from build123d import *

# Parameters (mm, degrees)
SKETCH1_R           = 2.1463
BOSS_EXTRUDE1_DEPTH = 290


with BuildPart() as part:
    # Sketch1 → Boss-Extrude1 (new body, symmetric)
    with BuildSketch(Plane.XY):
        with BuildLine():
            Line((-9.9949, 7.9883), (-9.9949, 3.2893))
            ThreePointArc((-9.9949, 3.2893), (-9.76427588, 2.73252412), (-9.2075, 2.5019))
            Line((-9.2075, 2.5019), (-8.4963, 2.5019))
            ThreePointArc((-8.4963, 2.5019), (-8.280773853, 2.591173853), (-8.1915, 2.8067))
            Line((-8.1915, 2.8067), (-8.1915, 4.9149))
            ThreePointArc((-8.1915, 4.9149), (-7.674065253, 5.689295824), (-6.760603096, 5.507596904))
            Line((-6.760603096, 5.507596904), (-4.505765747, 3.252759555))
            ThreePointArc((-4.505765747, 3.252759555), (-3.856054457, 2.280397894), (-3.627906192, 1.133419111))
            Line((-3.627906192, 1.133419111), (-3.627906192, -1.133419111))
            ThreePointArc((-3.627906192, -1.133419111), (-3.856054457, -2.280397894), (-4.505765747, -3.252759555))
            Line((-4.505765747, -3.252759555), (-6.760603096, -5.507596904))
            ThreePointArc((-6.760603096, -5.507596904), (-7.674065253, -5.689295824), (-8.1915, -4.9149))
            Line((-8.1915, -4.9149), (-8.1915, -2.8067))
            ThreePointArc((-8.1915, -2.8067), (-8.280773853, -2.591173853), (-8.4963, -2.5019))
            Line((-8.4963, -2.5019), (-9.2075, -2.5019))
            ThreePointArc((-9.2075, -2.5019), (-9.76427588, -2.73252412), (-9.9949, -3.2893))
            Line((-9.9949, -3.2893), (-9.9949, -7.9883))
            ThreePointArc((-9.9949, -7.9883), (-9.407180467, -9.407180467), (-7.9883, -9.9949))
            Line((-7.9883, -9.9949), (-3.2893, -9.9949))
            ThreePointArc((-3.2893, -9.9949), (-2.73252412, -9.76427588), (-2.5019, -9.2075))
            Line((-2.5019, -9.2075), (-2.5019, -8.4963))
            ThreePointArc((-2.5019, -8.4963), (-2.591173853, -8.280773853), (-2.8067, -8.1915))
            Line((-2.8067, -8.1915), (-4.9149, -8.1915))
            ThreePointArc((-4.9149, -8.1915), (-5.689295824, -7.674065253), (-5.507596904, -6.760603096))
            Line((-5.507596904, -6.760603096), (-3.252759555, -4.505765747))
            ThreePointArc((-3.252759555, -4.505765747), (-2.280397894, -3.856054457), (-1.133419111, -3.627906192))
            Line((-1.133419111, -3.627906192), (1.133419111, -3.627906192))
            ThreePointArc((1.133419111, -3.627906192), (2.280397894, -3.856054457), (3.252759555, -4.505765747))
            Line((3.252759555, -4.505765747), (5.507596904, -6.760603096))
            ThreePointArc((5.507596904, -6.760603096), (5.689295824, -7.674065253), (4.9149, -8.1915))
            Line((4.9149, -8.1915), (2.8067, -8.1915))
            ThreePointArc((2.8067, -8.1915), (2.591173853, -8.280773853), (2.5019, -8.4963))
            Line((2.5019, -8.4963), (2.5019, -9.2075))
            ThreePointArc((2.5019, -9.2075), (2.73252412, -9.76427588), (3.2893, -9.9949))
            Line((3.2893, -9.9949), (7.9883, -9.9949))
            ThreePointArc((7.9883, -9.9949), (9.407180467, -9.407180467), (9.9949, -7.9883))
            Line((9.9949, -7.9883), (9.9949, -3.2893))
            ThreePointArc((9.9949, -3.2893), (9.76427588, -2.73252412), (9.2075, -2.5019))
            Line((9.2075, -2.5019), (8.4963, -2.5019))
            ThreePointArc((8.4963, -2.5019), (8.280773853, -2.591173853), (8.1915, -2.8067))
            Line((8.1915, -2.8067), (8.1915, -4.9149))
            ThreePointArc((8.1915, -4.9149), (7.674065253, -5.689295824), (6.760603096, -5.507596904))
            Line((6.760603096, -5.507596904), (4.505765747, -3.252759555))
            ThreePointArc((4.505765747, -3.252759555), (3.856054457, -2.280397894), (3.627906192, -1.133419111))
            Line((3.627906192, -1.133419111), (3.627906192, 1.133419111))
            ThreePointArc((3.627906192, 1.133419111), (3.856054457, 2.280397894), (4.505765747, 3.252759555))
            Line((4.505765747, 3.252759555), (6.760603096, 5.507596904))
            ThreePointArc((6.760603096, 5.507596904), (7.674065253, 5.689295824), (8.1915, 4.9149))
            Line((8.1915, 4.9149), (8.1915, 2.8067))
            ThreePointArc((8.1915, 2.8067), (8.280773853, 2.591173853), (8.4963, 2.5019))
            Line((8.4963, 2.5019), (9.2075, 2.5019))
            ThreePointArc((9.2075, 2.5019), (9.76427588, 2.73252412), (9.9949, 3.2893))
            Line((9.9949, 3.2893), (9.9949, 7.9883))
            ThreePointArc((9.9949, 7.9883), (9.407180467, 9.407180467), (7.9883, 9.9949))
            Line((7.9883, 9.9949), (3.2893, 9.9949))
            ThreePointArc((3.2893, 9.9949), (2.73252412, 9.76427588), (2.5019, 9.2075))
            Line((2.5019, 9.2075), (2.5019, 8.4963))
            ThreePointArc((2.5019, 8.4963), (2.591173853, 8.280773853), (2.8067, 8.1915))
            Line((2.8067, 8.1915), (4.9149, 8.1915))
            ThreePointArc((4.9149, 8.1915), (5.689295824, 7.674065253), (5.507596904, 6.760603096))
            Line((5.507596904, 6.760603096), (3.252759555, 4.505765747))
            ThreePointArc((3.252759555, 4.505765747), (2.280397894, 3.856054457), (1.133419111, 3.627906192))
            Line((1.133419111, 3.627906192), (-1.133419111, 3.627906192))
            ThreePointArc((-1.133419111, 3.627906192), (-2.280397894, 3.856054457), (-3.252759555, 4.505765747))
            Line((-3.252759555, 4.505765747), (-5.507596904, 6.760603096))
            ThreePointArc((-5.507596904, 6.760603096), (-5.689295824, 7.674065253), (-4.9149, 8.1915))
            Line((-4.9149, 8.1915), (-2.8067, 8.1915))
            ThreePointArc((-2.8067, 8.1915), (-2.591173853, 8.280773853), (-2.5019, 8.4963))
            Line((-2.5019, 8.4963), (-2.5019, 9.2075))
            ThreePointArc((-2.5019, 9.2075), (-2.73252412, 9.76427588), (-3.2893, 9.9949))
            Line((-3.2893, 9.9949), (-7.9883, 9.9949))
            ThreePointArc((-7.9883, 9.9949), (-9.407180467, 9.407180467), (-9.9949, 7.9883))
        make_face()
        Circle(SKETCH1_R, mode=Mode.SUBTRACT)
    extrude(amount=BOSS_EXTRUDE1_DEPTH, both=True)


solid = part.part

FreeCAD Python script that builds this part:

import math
import FreeCAD as App
import Part
import Sketcher

V = App.Vector
Q = App.Units.Quantity

doc = App.newDocument("Part")
params = doc.addObject("Spreadsheet::Sheet", "Params")
for row, (alias, value) in enumerate([
    ("sketch1_diameter", "0.169 in"),
    ("sketch1_radius", "0.031 in"),
    ("sketch1_radius2", "0.012 in"),
    ("sketch1_radius3", "0.033 in"),
    ("sketch1_radius4", "0.118 in"),
    ("pad1_length", "580 mm"),
], start=1):
    params.set(f"A{row}", alias)
    params.set(f"B{row}", "=" + value)
    params.setAlias(f"B{row}", alias)

body = doc.addObject("PartDesign::Body", "Body")

sketch1 = body.newObject("Sketcher::SketchObject", "Sketch")
sketch1.AttachmentSupport = (doc.getObject("XY_Plane"), [""])
sketch1.MapMode = "FlatFace"
sketch1.addGeometry(Part.LineSegment(V(-9.99, 7.99, 0), V(-9.99, 3.29, 0)), False)
sketch1.addGeometry(Part.ArcOfCircle(Part.Circle(V(-9.21, 3.29, 0), V(0, 0, 1), 0.79), math.radians(180), math.radians(270)), False)
sketch1.addGeometry(Part.LineSegment(V(-9.21, 2.5, 0), V(-8.5, 2.5, 0)), False)
sketch1.addGeometry(Part.ArcOfCircle(Part.Circle(V(-8.5, 2.81, 0), V(0, 0, 1), 0.3), math.radians(-90), math.radians(0)), False)
sketch1.addGeometry(Part.LineSegment(V(-8.19, 2.81, 0), V(-8.19, 4.91, 0)), False)
sketch1.addGeometry(Part.ArcOfCircle(Part.Circle(V(-7.35, 4.91, 0), V(0, 0, 1), 0.84), math.radians(45), math.radians(180)), False)
sketch1.addGeometry(Part.LineSegment(V(-6.76, 5.51, 0), V(-4.51, 3.25, 0)), False)
sketch1.addGeometry(Part.ArcOfCircle(Part.Circle(V(-6.63, 1.13, 0), V(0, 0, 1), 3), math.radians(0), math.radians(45)), False)
sketch1.addGeometry(Part.LineSegment(V(-3.63, 1.13, 0), V(-3.63, -1.13, 0)), False)
sketch1.addGeometry(Part.ArcOfCircle(Part.Circle(V(-6.63, -1.13, 0), V(0, 0, 1), 3), math.radians(-45), math.radians(0)), False)
sketch1.addGeometry(Part.LineSegment(V(-4.51, -3.25, 0), V(-6.76, -5.51, 0)), False)
sketch1.addGeometry(Part.ArcOfCircle(Part.Circle(V(-7.35, -4.91, 0), V(0, 0, 1), 0.84), math.radians(180), math.radians(315)), False)
sketch1.addGeometry(Part.LineSegment(V(-8.19, -4.91, 0), V(-8.19, -2.81, 0)), False)
sketch1.addGeometry(Part.ArcOfCircle(Part.Circle(V(-8.5, -2.81, 0), V(0, 0, 1), 0.3), math.radians(0), math.radians(90)), False)
sketch1.addGeometry(Part.LineSegment(V(-8.5, -2.5, 0), V(-9.21, -2.5, 0)), False)
sketch1.addGeometry(Part.ArcOfCircle(Part.Circle(V(-9.21, -3.29, 0), V(0, 0, 1), 0.79), math.radians(90), math.radians(180)), False)
sketch1.addGeometry(Part.LineSegment(V(-9.99, -3.29, 0), V(-9.99, -7.99, 0)), False)
sketch1.addGeometry(Part.ArcOfCircle(Part.Circle(V(-7.99, -7.99, 0), V(0, 0, 1), 2.01), math.radians(180), math.radians(270)), False)
sketch1.addGeometry(Part.LineSegment(V(-7.99, -9.99, 0), V(-3.29, -9.99, 0)), False)
sketch1.addGeometry(Part.ArcOfCircle(Part.Circle(V(-3.29, -9.21, 0), V(0, 0, 1), 0.79), math.radians(-90), math.radians(0)), False)
sketch1.addGeometry(Part.LineSegment(V(-2.5, -9.21, 0), V(-2.5, -8.5, 0)), False)
sketch1.addGeometry(Part.ArcOfCircle(Part.Circle(V(-2.81, -8.5, 0), V(0, 0, 1), 0.3), math.radians(0), math.radians(90)), False)
sketch1.addGeometry(Part.LineSegment(V(-2.81, -8.19, 0), V(-4.91, -8.19, 0)), False)
sketch1.addGeometry(Part.ArcOfCircle(Part.Circle(V(-4.91, -7.35, 0), V(0, 0, 1), 0.84), math.radians(135), math.radians(270)), False)
sketch1.addGeometry(Part.LineSegment(V(-5.51, -6.76, 0), V(-3.25, -4.51, 0)), False)
sketch1.addGeometry(Part.ArcOfCircle(Part.Circle(V(-1.13, -6.63, 0), V(0, 0, 1), 3), math.radians(90), math.radians(135)), False)
sketch1.addGeometry(Part.LineSegment(V(-1.13, -3.63, 0), V(1.13, -3.63, 0)), False)
sketch1.addGeometry(Part.ArcOfCircle(Part.Circle(V(1.13, -6.63, 0), V(0, 0, 1), 3), math.radians(45), math.radians(90)), False)
sketch1.addGeometry(Part.LineSegment(V(3.25, -4.51, 0), V(5.51, -6.76, 0)), False)
sketch1.addGeometry(Part.ArcOfCircle(Part.Circle(V(4.91, -7.35, 0), V(0, 0, 1), 0.84), math.radians(-90), math.radians(45)), False)
sketch1.addGeometry(Part.LineSegment(V(4.91, -8.19, 0), V(2.81, -8.19, 0)), False)
sketch1.addGeometry(Part.ArcOfCircle(Part.Circle(V(2.81, -8.5, 0), V(0, 0, 1), 0.3), math.radians(90), math.radians(180)), False)
sketch1.addGeometry(Part.LineSegment(V(2.5, -8.5, 0), V(2.5, -9.21, 0)), False)
sketch1.addGeometry(Part.ArcOfCircle(Part.Circle(V(3.29, -9.21, 0), V(0, 0, 1), 0.79), math.radians(180), math.radians(270)), False)
sketch1.addGeometry(Part.LineSegment(V(3.29, -9.99, 0), V(7.99, -9.99, 0)), False)
sketch1.addGeometry(Part.ArcOfCircle(Part.Circle(V(7.99, -7.99, 0), V(0, 0, 1), 2.01), math.radians(-90), math.radians(0)), False)
sketch1.addGeometry(Part.LineSegment(V(9.99, -7.99, 0), V(9.99, -3.29, 0)), False)
sketch1.addGeometry(Part.ArcOfCircle(Part.Circle(V(9.21, -3.29, 0), V(0, 0, 1), 0.79), math.radians(0), math.radians(90)), False)
sketch1.addGeometry(Part.LineSegment(V(9.21, -2.5, 0), V(8.5, -2.5, 0)), False)
sketch1.addGeometry(Part.ArcOfCircle(Part.Circle(V(8.5, -2.81, 0), V(0, 0, 1), 0.3), math.radians(90), math.radians(180)), False)
sketch1.addGeometry(Part.LineSegment(V(8.19, -2.81, 0), V(8.19, -4.91, 0)), False)
sketch1.addGeometry(Part.ArcOfCircle(Part.Circle(V(7.35, -4.91, 0), V(0, 0, 1), 0.84), math.radians(-135), math.radians(0)), False)
sketch1.addGeometry(Part.LineSegment(V(6.76, -5.51, 0), V(4.51, -3.25, 0)), False)
sketch1.addGeometry(Part.ArcOfCircle(Part.Circle(V(6.63, -1.13, 0), V(0, 0, 1), 3), math.radians(180), math.radians(225)), False)
sketch1.addGeometry(Part.LineSegment(V(3.63, -1.13, 0), V(3.63, 1.13, 0)), False)
sketch1.addGeometry(Part.ArcOfCircle(Part.Circle(V(6.63, 1.13, 0), V(0, 0, 1), 3), math.radians(135), math.radians(180)), False)
sketch1.addGeometry(Part.LineSegment(V(4.51, 3.25, 0), V(6.76, 5.51, 0)), False)
sketch1.addGeometry(Part.ArcOfCircle(Part.Circle(V(7.35, 4.91, 0), V(0, 0, 1), 0.84), math.radians(0), math.radians(135)), False)
sketch1.addGeometry(Part.LineSegment(V(8.19, 4.91, 0), V(8.19, 2.81, 0)), False)
sketch1.addGeometry(Part.ArcOfCircle(Part.Circle(V(8.5, 2.81, 0), V(0, 0, 1), 0.3), math.radians(180), math.radians(270)), False)
sketch1.addGeometry(Part.LineSegment(V(8.5, 2.5, 0), V(9.21, 2.5, 0)), False)
sketch1.addGeometry(Part.ArcOfCircle(Part.Circle(V(9.21, 3.29, 0), V(0, 0, 1), 0.79), math.radians(-90), math.radians(0)), False)
sketch1.addGeometry(Part.LineSegment(V(9.99, 3.29, 0), V(9.99, 7.99, 0)), False)
sketch1.addGeometry(Part.ArcOfCircle(Part.Circle(V(7.99, 7.99, 0), V(0, 0, 1), 2.01), math.radians(0), math.radians(90)), False)
sketch1.addGeometry(Part.LineSegment(V(7.99, 9.99, 0), V(3.29, 9.99, 0)), False)
sketch1.addGeometry(Part.ArcOfCircle(Part.Circle(V(3.29, 9.21, 0), V(0, 0, 1), 0.79), math.radians(90), math.radians(180)), False)
sketch1.addGeometry(Part.LineSegment(V(2.5, 9.21, 0), V(2.5, 8.5, 0)), False)
sketch1.addGeometry(Part.ArcOfCircle(Part.Circle(V(2.81, 8.5, 0), V(0, 0, 1), 0.3), math.radians(180), math.radians(270)), False)
sketch1.addGeometry(Part.LineSegment(V(2.81, 8.19, 0), V(4.91, 8.19, 0)), False)
sketch1.addGeometry(Part.ArcOfCircle(Part.Circle(V(4.91, 7.35, 0), V(0, 0, 1), 0.84), math.radians(-45), math.radians(90)), False)
sketch1.addGeometry(Part.LineSegment(V(5.51, 6.76, 0), V(3.25, 4.51, 0)), False)
sketch1.addGeometry(Part.ArcOfCircle(Part.Circle(V(1.13, 6.63, 0), V(0, 0, 1), 3), math.radians(-90), math.radians(-45)), False)
sketch1.addGeometry(Part.LineSegment(V(1.13, 3.63, 0), V(-1.13, 3.63, 0)), False)
sketch1.addGeometry(Part.ArcOfCircle(Part.Circle(V(-1.13, 6.63, 0), V(0, 0, 1), 3), math.radians(-135), math.radians(-90)), False)
sketch1.addGeometry(Part.LineSegment(V(-3.25, 4.51, 0), V(-5.51, 6.76, 0)), False)
sketch1.addGeometry(Part.ArcOfCircle(Part.Circle(V(-4.91, 7.35, 0), V(0, 0, 1), 0.84), math.radians(90), math.radians(225)), False)
sketch1.addGeometry(Part.LineSegment(V(-4.91, 8.19, 0), V(-2.81, 8.19, 0)), False)
sketch1.addGeometry(Part.ArcOfCircle(Part.Circle(V(-2.81, 8.5, 0), V(0, 0, 1), 0.3), math.radians(-90), math.radians(0)), False)
sketch1.addGeometry(Part.LineSegment(V(-2.5, 8.5, 0), V(-2.5, 9.21, 0)), False)
sketch1.addGeometry(Part.ArcOfCircle(Part.Circle(V(-3.29, 9.21, 0), V(0, 0, 1), 0.79), math.radians(0), math.radians(90)), False)
sketch1.addGeometry(Part.LineSegment(V(-3.29, 9.99, 0), V(-7.99, 9.99, 0)), False)
sketch1.addGeometry(Part.ArcOfCircle(Part.Circle(V(-7.99, 7.99, 0), V(0, 0, 1), 2.01), math.radians(90), math.radians(180)), False)
sketch1.addGeometry(Part.Circle(V(0, 0, 0), V(0, 0, 1), 2.15), False)
sketch1.addConstraint(Sketcher.Constraint("Tangent", 0, 2, 1, 1))
sketch1.addConstraint(Sketcher.Constraint("Tangent", 1, 2, 2, 1))
sketch1.addConstraint(Sketcher.Constraint("Tangent", 2, 2, 3, 1))
sketch1.addConstraint(Sketcher.Constraint("Tangent", 3, 2, 4, 1))
sketch1.addConstraint(Sketcher.Constraint("Tangent", 4, 2, 5, 2))
sketch1.addConstraint(Sketcher.Constraint("Tangent", 5, 1, 6, 1))
sketch1.addConstraint(Sketcher.Constraint("Tangent", 6, 2, 7, 2))
sketch1.addConstraint(Sketcher.Constraint("Tangent", 7, 1, 8, 1))
sketch1.addConstraint(Sketcher.Constraint("Tangent", 8, 2, 9, 2))
sketch1.addConstraint(Sketcher.Constraint("Tangent", 9, 1, 10, 1))
sketch1.addConstraint(Sketcher.Constraint("Tangent", 10, 2, 11, 2))
sketch1.addConstraint(Sketcher.Constraint("Tangent", 11, 1, 12, 1))
sketch1.addConstraint(Sketcher.Constraint("Tangent", 12, 2, 13, 1))
sketch1.addConstraint(Sketcher.Constraint("Tangent", 13, 2, 14, 1))
sketch1.addConstraint(Sketcher.Constraint("Tangent", 14, 2, 15, 1))
sketch1.addConstraint(Sketcher.Constraint("Tangent", 15, 2, 16, 1))
sketch1.addConstraint(Sketcher.Constraint("Tangent", 16, 2, 17, 1))
sketch1.addConstraint(Sketcher.Constraint("Tangent", 17, 2, 18, 1))
sketch1.addConstraint(Sketcher.Constraint("Tangent", 18, 2, 19, 1))
sketch1.addConstraint(Sketcher.Constraint("Tangent", 19, 2, 20, 1))
sketch1.addConstraint(Sketcher.Constraint("Tangent", 20, 2, 21, 1))
sketch1.addConstraint(Sketcher.Constraint("Tangent", 21, 2, 22, 1))
sketch1.addConstraint(Sketcher.Constraint("Tangent", 22, 2, 23, 2))
sketch1.addConstraint(Sketcher.Constraint("Tangent", 23, 1, 24, 1))
sketch1.addConstraint(Sketcher.Constraint("Tangent", 24, 2, 25, 2))
sketch1.addConstraint(Sketcher.Constraint("Tangent", 25, 1, 26, 1))
sketch1.addConstraint(Sketcher.Constraint("Tangent", 26, 2, 27, 2))
sketch1.addConstraint(Sketcher.Constraint("Tangent", 27, 1, 28, 1))
sketch1.addConstraint(Sketcher.Constraint("Tangent", 28, 2, 29, 2))
sketch1.addConstraint(Sketcher.Constraint("Tangent", 29, 1, 30, 1))
sketch1.addConstraint(Sketcher.Constraint("Tangent", 30, 2, 31, 1))
sketch1.addConstraint(Sketcher.Constraint("Tangent", 31, 2, 32, 1))
sketch1.addConstraint(Sketcher.Constraint("Tangent", 32, 2, 33, 1))
sketch1.addConstraint(Sketcher.Constraint("Tangent", 33, 2, 34, 1))
sketch1.addConstraint(Sketcher.Constraint("Tangent", 34, 2, 35, 1))
sketch1.addConstraint(Sketcher.Constraint("Tangent", 35, 2, 36, 1))
sketch1.addConstraint(Sketcher.Constraint("Tangent", 36, 2, 37, 1))
sketch1.addConstraint(Sketcher.Constraint("Tangent", 37, 2, 38, 1))
sketch1.addConstraint(Sketcher.Constraint("Tangent", 38, 2, 39, 1))
sketch1.addConstraint(Sketcher.Constraint("Tangent", 39, 2, 40, 1))
sketch1.addConstraint(Sketcher.Constraint("Tangent", 40, 2, 41, 2))
sketch1.addConstraint(Sketcher.Constraint("Tangent", 41, 1, 42, 1))
sketch1.addConstraint(Sketcher.Constraint("Tangent", 42, 2, 43, 2))
sketch1.addConstraint(Sketcher.Constraint("Tangent", 43, 1, 44, 1))
sketch1.addConstraint(Sketcher.Constraint("Tangent", 44, 2, 45, 2))
sketch1.addConstraint(Sketcher.Constraint("Tangent", 45, 1, 46, 1))
sketch1.addConstraint(Sketcher.Constraint("Tangent", 46, 2, 47, 2))
sketch1.addConstraint(Sketcher.Constraint("Tangent", 47, 1, 48, 1))
sketch1.addConstraint(Sketcher.Constraint("Tangent", 48, 2, 49, 1))
sketch1.addConstraint(Sketcher.Constraint("Tangent", 49, 2, 50, 1))
sketch1.addConstraint(Sketcher.Constraint("Tangent", 50, 2, 51, 1))
sketch1.addConstraint(Sketcher.Constraint("Tangent", 51, 2, 52, 1))
sketch1.addConstraint(Sketcher.Constraint("Tangent", 52, 2, 53, 1))
sketch1.addConstraint(Sketcher.Constraint("Tangent", 53, 2, 54, 1))
sketch1.addConstraint(Sketcher.Constraint("Tangent", 54, 2, 55, 1))
sketch1.addConstraint(Sketcher.Constraint("Tangent", 55, 2, 56, 1))
sketch1.addConstraint(Sketcher.Constraint("Tangent", 56, 2, 57, 1))
sketch1.addConstraint(Sketcher.Constraint("Tangent", 57, 2, 58, 1))
sketch1.addConstraint(Sketcher.Constraint("Tangent", 58, 2, 59, 2))
sketch1.addConstraint(Sketcher.Constraint("Tangent", 59, 1, 60, 1))
sketch1.addConstraint(Sketcher.Constraint("Tangent", 60, 2, 61, 2))
sketch1.addConstraint(Sketcher.Constraint("Tangent", 61, 1, 62, 1))
sketch1.addConstraint(Sketcher.Constraint("Tangent", 62, 2, 63, 2))
sketch1.addConstraint(Sketcher.Constraint("Tangent", 63, 1, 64, 1))
sketch1.addConstraint(Sketcher.Constraint("Tangent", 64, 2, 65, 2))
sketch1.addConstraint(Sketcher.Constraint("Tangent", 65, 1, 66, 1))
sketch1.addConstraint(Sketcher.Constraint("Tangent", 66, 2, 67, 1))
sketch1.addConstraint(Sketcher.Constraint("Tangent", 67, 2, 68, 1))
sketch1.addConstraint(Sketcher.Constraint("Tangent", 68, 2, 69, 1))
sketch1.addConstraint(Sketcher.Constraint("Tangent", 69, 2, 70, 1))
sketch1.addConstraint(Sketcher.Constraint("Tangent", 70, 2, 71, 1))
sketch1.addConstraint(Sketcher.Constraint("Tangent", 71, 2, 0, 1))
sketch1.addConstraint(Sketcher.Constraint("Vertical", 0))
sketch1.addConstraint(Sketcher.Constraint("Horizontal", 2))
sketch1.addConstraint(Sketcher.Constraint("Vertical", 4))
sketch1.addConstraint(Sketcher.Constraint("Vertical", 8))
sketch1.addConstraint(Sketcher.Constraint("Vertical", 12))
sketch1.addConstraint(Sketcher.Constraint("Horizontal", 14))
sketch1.addConstraint(Sketcher.Constraint("Vertical", 16))
sketch1.addConstraint(Sketcher.Constraint("Horizontal", 18))
sketch1.addConstraint(Sketcher.Constraint("Vertical", 20))
sketch1.addConstraint(Sketcher.Constraint("Horizontal", 22))
sketch1.addConstraint(Sketcher.Constraint("Horizontal", 26))
sketch1.addConstraint(Sketcher.Constraint("Horizontal", 30))
sketch1.addConstraint(Sketcher.Constraint("Vertical", 32))
sketch1.addConstraint(Sketcher.Constraint("Horizontal", 34))
sketch1.addConstraint(Sketcher.Constraint("Vertical", 36))
sketch1.addConstraint(Sketcher.Constraint("Horizontal", 38))
sketch1.addConstraint(Sketcher.Constraint("Vertical", 40))
sketch1.addConstraint(Sketcher.Constraint("Vertical", 44))
sketch1.addConstraint(Sketcher.Constraint("Vertical", 48))
sketch1.addConstraint(Sketcher.Constraint("Horizontal", 50))
sketch1.addConstraint(Sketcher.Constraint("Vertical", 52))
sketch1.addConstraint(Sketcher.Constraint("Horizontal", 54))
sketch1.addConstraint(Sketcher.Constraint("Vertical", 56))
sketch1.addConstraint(Sketcher.Constraint("Horizontal", 58))
sketch1.addConstraint(Sketcher.Constraint("Horizontal", 62))
sketch1.addConstraint(Sketcher.Constraint("Horizontal", 66))
sketch1.addConstraint(Sketcher.Constraint("Vertical", 68))
sketch1.addConstraint(Sketcher.Constraint("Horizontal", 70))
sketch1.addConstraint(Sketcher.Constraint("Coincident", 72, 3, -1, 1))
sketch1.addConstraint(Sketcher.Constraint("Equal", 7, 9))
sketch1.addConstraint(Sketcher.Constraint("Equal", 5, 11))
sketch1.addConstraint(Sketcher.Constraint("Equal", 3, 13))
sketch1.addConstraint(Sketcher.Constraint("Equal", 1, 15))
sketch1.addConstraint(Sketcher.Constraint("Equal", 15, 19))
sketch1.addConstraint(Sketcher.Constraint("Equal", 13, 21))
sketch1.addConstraint(Sketcher.Constraint("Equal", 11, 23))
sketch1.addConstraint(Sketcher.Constraint("Equal", 9, 25))
sketch1.addConstraint(Sketcher.Constraint("Equal", 25, 27))
sketch1.addConstraint(Sketcher.Constraint("Equal", 23, 29))
sketch1.addConstraint(Sketcher.Constraint("Equal", 21, 31))
sketch1.addConstraint(Sketcher.Constraint("Equal", 19, 33))
sketch1.addConstraint(Sketcher.Constraint("Equal", 17, 35))
sketch1.addConstraint(Sketcher.Constraint("Equal", 33, 37))
sketch1.addConstraint(Sketcher.Constraint("Equal", 31, 39))
sketch1.addConstraint(Sketcher.Constraint("Equal", 29, 41))
sketch1.addConstraint(Sketcher.Constraint("Equal", 27, 43))
sketch1.addConstraint(Sketcher.Constraint("Equal", 43, 45))
sketch1.addConstraint(Sketcher.Constraint("Equal", 41, 47))
sketch1.addConstraint(Sketcher.Constraint("Equal", 39, 49))
sketch1.addConstraint(Sketcher.Constraint("Equal", 37, 51))
sketch1.addConstraint(Sketcher.Constraint("Equal", 35, 53))
sketch1.addConstraint(Sketcher.Constraint("Equal", 51, 55))
sketch1.addConstraint(Sketcher.Constraint("Equal", 49, 57))
sketch1.addConstraint(Sketcher.Constraint("Equal", 47, 59))
sketch1.addConstraint(Sketcher.Constraint("Equal", 45, 61))
sketch1.addConstraint(Sketcher.Constraint("Equal", 61, 63))
sketch1.addConstraint(Sketcher.Constraint("Equal", 59, 65))
sketch1.addConstraint(Sketcher.Constraint("Equal", 57, 67))
sketch1.addConstraint(Sketcher.Constraint("Equal", 55, 69))
sketch1.addConstraint(Sketcher.Constraint("Equal", 53, 71))
sketch1.addConstraint(Sketcher.Constraint("Symmetric", 1, 3, 37, 3, -1, 1))
sketch1.addConstraint(Sketcher.Constraint("Symmetric", 5, 3, 41, 3, -1, 1))
sketch1.addConstraint(Sketcher.Constraint("Symmetric", 7, 3, 43, 3, -1, 1))
sketch1.addConstraint(Sketcher.Constraint("Symmetric", 11, 3, 47, 3, -1, 1))
sketch1.addConstraint(Sketcher.Constraint("Symmetric", 15, 3, 51, 3, -1, 1))
sketch1.addConstraint(Sketcher.Constraint("Symmetric", 19, 3, 55, 3, -1, 1))
sketch1.addConstraint(Sketcher.Constraint("Symmetric", 23, 3, 59, 3, -1, 1))
sketch1.addConstraint(Sketcher.Constraint("Symmetric", 25, 3, 61, 3, -1, 1))
sketch1.addConstraint(Sketcher.Constraint("Symmetric", 29, 3, 65, 3, -1, 1))
sketch1.addConstraint(Sketcher.Constraint("Symmetric", 33, 3, 69, 3, -1, 1))
sketch1.addConstraint(Sketcher.Constraint("Symmetric", 23, 3, 29, 3, -2))
sketch1.addConstraint(Sketcher.Constraint("Symmetric", 19, 3, 33, 3, -2))
sketch1.addConstraint(Sketcher.Constraint("Symmetric", 15, 3, 37, 3, -2))
sketch1.addConstraint(Sketcher.Constraint("Symmetric", 11, 3, 41, 3, -2))
sketch1.addConstraint(Sketcher.Constraint("Perpendicular", 6, 10))
sketch1.addConstraint(Sketcher.Constraint("Parallel", 10, 24))
sketch1.addConstraint(Sketcher.Constraint("Perpendicular", 24, 28))
sketch1.addConstraint(Sketcher.Constraint("Perpendicular", 42, 46))
sketch1.addConstraint(Sketcher.Constraint("Perpendicular", 60, 64))
sketch1.addConstraint(Sketcher.Constraint("Horizontal", 9, 3, 43, 3))
sketch1.addConstraint(Sketcher.Constraint("Equal", 70, 0))
sketch1.addConstraint(Sketcher.Constraint("Equal", 66, 4))
sketch1.addConstraint(Sketcher.Constraint("Equal", 62, 8))
sketch1.addConstraint(Sketcher.Constraint("Equal", 50, 20))
sketch1.addConstraint(Sketcher.Constraint("Equal", 10, 24))
sketch1.addConstraint(Sketcher.Constraint("Diameter", 72, Q("0.169 in")))
sketch1.addConstraint(Sketcher.Constraint("Radius", 1, Q("0.031 in")))
sketch1.addConstraint(Sketcher.Constraint("Radius", 3, Q("0.012 in")))
sketch1.addConstraint(Sketcher.Constraint("Radius", 5, Q("0.033 in")))
sketch1.addConstraint(Sketcher.Constraint("Radius", 7, Q("0.118 in")))
sketch1.addConstraint(Sketcher.Constraint("Radius", 17, Q("0.079 in")))
sketch1.addConstraint(Sketcher.Constraint("DistanceX", 2, 1, 2, 2, Q("0.028 in")))
sketch1.addConstraint(Sketcher.Constraint("DistanceX", 18, 1, 18, 2, Q("0.185 in")))
sketch1.addConstraint(Sketcher.Constraint("DistanceX", 22, 2, 22, 1, Q("0.083 in")))
sketch1.addConstraint(Sketcher.Constraint("DistanceX", 1, 3, -1, 1, Q("0.3625 in")))
sketch1.addConstraint(Sketcher.Constraint("DistanceX", 26, 1, 26, 2, 2.266838))
sketch1.setExpression("Constraints[157]", "Params.sketch1_diameter")
sketch1.setExpression("Constraints[158]", "Params.sketch1_radius")
sketch1.setExpression("Constraints[159]", "Params.sketch1_radius2")
sketch1.setExpression("Constraints[160]", "Params.sketch1_radius3")
sketch1.setExpression("Constraints[161]", "Params.sketch1_radius4")
pad1 = body.newObject("PartDesign::Pad", "Pad")
pad1.Profile = sketch1
pad1.setExpression("Length", "Params.pad1_length")
pad1.Midplane = True

doc.recompute()
